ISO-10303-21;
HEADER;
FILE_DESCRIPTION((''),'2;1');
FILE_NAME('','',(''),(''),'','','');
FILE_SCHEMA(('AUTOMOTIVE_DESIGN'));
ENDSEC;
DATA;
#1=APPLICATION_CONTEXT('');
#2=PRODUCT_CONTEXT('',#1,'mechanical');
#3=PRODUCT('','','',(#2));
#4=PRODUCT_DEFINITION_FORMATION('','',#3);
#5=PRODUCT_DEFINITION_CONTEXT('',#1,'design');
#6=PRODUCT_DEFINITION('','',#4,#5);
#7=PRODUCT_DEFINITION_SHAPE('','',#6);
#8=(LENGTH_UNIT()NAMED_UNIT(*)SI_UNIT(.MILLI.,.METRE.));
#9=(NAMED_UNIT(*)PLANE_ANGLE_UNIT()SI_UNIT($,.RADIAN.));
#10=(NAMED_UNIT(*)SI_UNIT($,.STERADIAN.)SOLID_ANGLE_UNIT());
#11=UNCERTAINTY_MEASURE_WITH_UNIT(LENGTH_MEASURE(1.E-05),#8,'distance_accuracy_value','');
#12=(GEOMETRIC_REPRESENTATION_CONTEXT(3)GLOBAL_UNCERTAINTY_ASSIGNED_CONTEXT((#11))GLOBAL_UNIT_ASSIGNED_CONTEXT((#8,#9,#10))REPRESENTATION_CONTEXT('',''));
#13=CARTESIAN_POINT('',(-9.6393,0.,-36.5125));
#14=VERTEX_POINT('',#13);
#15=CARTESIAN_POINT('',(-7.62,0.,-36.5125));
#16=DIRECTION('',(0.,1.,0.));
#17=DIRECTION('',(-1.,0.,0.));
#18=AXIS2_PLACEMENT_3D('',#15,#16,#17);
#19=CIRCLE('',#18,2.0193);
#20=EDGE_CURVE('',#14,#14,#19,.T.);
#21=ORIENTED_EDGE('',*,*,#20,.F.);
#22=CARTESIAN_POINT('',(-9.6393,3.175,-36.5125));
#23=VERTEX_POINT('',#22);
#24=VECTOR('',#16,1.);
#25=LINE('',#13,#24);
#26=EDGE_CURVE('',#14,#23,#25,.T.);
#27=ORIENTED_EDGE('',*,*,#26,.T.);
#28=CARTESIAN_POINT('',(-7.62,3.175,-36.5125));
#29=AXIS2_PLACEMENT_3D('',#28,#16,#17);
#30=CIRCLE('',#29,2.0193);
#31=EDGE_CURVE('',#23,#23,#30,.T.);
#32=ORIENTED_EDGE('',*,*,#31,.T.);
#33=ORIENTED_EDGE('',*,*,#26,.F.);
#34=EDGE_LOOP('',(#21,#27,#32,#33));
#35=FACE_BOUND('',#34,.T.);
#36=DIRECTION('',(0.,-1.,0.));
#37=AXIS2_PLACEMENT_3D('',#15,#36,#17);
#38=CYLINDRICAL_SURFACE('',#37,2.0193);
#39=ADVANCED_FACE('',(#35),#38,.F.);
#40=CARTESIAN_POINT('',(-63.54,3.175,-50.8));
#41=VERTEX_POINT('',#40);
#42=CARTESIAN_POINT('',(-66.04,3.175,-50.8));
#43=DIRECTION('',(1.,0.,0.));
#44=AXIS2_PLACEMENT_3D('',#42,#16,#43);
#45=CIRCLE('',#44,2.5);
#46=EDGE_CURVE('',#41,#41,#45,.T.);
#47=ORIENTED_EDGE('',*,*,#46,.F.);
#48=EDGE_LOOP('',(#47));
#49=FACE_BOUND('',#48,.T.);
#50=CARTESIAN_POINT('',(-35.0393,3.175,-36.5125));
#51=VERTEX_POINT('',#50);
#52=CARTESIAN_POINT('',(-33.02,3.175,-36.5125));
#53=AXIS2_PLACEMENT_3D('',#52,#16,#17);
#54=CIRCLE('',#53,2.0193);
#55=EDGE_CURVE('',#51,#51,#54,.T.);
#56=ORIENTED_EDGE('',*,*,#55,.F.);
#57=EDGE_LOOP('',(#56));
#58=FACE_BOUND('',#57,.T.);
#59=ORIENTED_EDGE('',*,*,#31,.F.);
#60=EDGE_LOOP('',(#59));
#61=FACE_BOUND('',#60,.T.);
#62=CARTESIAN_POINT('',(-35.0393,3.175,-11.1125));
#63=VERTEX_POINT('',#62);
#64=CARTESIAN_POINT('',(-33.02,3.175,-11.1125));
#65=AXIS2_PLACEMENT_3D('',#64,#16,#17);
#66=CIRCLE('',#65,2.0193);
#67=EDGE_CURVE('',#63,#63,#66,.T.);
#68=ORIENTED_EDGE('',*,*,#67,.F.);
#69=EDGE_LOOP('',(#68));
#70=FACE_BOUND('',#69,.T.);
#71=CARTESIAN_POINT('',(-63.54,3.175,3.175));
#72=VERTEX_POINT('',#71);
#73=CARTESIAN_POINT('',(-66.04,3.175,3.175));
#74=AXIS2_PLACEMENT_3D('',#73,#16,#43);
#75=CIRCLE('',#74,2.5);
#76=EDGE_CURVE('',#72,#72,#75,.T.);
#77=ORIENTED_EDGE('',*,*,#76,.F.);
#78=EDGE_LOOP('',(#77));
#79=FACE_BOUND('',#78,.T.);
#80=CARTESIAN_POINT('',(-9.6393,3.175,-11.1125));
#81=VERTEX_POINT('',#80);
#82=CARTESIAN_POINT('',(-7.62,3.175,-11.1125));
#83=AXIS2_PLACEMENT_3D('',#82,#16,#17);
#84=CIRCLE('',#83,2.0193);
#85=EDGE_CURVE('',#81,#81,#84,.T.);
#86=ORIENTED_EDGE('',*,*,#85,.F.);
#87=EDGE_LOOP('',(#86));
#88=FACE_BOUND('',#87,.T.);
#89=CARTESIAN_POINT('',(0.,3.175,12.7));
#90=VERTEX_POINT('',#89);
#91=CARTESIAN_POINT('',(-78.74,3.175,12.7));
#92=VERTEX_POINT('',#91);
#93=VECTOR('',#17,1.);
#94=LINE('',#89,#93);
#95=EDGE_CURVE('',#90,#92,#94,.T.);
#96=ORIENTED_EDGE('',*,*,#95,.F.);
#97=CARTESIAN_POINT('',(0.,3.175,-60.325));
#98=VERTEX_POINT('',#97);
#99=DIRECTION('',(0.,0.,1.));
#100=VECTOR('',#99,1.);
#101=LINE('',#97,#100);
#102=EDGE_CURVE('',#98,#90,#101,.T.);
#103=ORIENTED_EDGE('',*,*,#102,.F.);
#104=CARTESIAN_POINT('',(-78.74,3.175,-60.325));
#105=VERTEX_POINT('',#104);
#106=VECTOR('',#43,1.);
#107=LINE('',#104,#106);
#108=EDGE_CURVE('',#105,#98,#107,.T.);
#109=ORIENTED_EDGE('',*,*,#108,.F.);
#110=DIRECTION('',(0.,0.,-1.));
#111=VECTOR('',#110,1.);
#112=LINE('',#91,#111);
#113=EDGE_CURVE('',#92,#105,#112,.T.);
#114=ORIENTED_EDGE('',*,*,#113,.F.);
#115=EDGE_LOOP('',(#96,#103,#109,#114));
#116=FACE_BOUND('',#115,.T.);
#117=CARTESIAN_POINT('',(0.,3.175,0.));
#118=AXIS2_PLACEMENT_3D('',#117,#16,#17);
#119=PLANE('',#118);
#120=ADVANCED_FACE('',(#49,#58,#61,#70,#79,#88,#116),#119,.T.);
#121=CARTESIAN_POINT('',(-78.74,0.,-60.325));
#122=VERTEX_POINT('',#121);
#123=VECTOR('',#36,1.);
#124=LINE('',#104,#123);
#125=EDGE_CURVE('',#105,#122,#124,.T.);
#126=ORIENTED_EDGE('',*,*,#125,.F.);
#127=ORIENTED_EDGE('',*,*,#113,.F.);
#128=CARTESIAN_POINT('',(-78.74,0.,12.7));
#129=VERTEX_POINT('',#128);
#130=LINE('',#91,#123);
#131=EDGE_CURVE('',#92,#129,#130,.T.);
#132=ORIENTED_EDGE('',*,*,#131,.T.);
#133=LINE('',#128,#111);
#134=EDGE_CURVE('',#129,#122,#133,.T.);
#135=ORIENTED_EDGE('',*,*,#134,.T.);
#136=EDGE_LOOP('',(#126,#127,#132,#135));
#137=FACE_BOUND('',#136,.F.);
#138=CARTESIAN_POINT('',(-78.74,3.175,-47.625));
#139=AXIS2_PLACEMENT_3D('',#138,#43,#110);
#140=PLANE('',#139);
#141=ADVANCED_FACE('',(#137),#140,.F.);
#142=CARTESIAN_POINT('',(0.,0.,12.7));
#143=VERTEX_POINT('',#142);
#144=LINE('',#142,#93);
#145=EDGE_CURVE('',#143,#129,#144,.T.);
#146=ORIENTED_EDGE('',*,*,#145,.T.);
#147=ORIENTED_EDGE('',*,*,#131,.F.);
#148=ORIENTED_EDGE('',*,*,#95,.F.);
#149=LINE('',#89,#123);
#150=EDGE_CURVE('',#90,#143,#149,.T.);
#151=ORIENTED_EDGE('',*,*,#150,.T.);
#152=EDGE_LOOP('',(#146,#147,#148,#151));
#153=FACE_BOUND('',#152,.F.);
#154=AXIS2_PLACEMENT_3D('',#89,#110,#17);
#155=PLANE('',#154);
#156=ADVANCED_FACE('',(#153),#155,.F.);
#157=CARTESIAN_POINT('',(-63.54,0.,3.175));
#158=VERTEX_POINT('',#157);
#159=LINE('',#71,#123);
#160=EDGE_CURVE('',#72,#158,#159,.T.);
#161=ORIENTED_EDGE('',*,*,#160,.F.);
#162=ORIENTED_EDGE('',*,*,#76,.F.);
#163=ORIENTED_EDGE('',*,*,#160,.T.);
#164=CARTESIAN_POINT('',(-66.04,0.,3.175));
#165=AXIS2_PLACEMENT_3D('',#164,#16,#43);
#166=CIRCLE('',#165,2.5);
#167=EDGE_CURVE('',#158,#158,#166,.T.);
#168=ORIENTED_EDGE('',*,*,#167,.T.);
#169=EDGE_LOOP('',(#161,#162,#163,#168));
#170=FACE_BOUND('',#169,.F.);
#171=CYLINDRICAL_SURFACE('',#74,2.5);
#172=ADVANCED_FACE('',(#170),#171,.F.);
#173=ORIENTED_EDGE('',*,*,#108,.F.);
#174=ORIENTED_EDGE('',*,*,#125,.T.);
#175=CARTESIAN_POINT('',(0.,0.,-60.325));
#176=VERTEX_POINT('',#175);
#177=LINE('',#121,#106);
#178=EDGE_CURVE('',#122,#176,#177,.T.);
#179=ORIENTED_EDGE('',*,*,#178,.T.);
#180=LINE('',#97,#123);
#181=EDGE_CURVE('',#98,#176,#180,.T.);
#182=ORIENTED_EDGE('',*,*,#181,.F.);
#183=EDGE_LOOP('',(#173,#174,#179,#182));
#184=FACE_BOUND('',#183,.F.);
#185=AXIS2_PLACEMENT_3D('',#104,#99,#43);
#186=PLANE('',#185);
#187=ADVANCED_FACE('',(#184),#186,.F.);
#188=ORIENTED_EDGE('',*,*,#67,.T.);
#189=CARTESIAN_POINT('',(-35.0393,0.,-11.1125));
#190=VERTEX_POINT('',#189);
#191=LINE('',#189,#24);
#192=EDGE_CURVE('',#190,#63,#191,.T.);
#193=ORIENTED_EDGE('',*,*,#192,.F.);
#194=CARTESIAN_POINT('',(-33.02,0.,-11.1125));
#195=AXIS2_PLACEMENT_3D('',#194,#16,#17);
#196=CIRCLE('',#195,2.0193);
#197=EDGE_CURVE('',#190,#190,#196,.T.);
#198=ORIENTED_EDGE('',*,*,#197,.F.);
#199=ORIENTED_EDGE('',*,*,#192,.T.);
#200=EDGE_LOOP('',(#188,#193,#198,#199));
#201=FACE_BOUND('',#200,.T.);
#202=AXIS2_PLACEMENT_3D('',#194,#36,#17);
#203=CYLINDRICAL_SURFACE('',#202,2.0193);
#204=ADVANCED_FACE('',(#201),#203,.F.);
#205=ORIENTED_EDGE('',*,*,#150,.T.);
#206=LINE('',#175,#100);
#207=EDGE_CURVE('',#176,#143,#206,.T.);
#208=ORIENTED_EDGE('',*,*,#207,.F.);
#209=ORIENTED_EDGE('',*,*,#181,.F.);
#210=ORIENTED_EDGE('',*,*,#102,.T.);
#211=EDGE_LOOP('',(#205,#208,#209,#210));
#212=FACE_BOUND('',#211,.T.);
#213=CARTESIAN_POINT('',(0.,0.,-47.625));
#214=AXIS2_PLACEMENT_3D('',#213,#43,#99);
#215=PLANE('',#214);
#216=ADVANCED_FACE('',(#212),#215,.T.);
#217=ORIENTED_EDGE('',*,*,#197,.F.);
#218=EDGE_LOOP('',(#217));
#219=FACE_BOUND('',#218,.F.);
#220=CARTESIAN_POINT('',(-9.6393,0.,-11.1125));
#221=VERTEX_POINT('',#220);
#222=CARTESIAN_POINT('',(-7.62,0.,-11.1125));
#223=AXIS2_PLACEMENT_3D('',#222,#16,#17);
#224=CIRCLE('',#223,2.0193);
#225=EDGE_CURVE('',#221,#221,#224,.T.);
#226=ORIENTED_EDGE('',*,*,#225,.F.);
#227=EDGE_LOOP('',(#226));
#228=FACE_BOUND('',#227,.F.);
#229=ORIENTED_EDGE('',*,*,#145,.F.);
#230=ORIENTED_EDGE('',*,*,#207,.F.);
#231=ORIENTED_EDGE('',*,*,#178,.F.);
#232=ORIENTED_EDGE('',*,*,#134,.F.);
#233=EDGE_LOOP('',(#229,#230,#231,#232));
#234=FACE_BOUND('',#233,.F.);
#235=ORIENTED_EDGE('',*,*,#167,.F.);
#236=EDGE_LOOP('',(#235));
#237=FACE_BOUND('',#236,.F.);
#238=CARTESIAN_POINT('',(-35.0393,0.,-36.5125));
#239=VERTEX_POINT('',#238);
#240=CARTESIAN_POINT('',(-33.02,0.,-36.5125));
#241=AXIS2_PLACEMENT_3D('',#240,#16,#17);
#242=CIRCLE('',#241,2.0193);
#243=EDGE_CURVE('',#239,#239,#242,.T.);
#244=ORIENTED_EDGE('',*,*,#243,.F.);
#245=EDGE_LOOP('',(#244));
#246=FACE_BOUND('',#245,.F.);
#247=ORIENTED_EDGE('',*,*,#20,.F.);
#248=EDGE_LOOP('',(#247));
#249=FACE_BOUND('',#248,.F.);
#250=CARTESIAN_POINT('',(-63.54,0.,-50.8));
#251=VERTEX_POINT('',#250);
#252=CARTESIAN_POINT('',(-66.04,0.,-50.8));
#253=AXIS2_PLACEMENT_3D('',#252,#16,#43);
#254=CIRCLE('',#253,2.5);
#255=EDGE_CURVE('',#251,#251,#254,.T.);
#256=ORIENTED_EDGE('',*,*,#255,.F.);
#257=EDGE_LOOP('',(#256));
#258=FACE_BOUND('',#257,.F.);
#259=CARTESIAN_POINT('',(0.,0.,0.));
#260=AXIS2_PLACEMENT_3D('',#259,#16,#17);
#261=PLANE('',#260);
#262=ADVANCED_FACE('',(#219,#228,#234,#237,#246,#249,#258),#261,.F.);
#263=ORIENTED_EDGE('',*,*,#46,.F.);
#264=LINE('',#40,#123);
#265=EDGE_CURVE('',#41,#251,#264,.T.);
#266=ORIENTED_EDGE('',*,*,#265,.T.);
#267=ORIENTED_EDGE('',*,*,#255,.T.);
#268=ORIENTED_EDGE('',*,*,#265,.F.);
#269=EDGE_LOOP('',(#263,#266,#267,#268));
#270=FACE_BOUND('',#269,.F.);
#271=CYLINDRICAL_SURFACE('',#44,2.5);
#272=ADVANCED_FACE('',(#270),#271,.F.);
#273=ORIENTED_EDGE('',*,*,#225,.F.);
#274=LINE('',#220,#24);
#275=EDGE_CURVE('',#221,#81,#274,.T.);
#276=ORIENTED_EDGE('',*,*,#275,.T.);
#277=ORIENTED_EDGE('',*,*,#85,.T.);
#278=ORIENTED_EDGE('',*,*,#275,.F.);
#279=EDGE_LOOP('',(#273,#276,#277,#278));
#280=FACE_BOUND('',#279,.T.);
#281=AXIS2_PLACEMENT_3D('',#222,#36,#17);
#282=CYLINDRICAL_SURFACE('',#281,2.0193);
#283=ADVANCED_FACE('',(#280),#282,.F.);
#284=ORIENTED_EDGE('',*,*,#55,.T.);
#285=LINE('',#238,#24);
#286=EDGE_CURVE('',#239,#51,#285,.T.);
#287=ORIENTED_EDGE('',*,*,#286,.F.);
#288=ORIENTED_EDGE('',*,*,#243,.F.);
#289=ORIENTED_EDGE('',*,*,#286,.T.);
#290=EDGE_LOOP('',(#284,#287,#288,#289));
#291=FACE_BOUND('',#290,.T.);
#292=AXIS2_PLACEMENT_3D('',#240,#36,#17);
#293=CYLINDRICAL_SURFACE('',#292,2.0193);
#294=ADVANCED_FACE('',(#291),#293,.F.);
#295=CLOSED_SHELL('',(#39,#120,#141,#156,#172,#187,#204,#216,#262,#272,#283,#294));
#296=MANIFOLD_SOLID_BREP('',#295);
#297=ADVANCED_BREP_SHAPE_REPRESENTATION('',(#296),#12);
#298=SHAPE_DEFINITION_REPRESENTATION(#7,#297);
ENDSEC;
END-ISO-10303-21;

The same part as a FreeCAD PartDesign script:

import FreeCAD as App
import Part
import Sketcher

V = App.Vector
Q = App.Units.Quantity

doc = App.newDocument("Part")
body = doc.addObject("PartDesign::Body", "Body")

# Sketch on XZ plane
sketch1 = body.newObject("Sketcher::SketchObject", "Sketch")
sketch1.AttachmentSupport = (doc.getObject("XZ_Plane"), [""])
sketch1.MapMode = "FlatFace"
sketch1.addGeometry([
    Part.LineSegment(V(-101.6, 0, 0), V(0, 0, 0)),  # 0
    Part.LineSegment(V(0, 0, 0), V(0, -47.625, 0)),  # 1
    Part.LineSegment(V(0, -47.625, 0), V(-101.6, -47.625, 0)),  # 2
    Part.LineSegment(V(-101.6, -47.625, 0), V(-101.6, 0, 0)),  # 3
    Part.Circle(V(-7.62, -36.5125, 0), V(0, 0, 1), 2.0193),  # 4
    Part.Circle(V(-33.02, -36.5125, 0), V(0, 0, 1), 2.0193),  # 5
    Part.Circle(V(-88.9, -38.1, 0), V(0, 0, 1), 2.5),  # 6
    Part.Circle(V(-7.62, -11.1125, 0), V(0, 0, 1), 2.0193),  # 7
    Part.Circle(V(-33.02, -11.1125, 0), V(0, 0, 1), 2.0193),  # 8
    Part.Circle(V(-88.9, -9.525, 0), V(0, 0, 1), 2.5),  # 9
], False)
sketch1.addConstraint([
    Sketcher.Constraint("Coincident", 0, 2, 1, 1),
    Sketcher.Constraint("Coincident", 1, 2, 2, 1),
    Sketcher.Constraint("Coincident", 2, 2, 3, 1),
    Sketcher.Constraint("Coincident", 3, 2, 0, 1),
    Sketcher.Constraint("Horizontal", 0),
    Sketcher.Constraint("Vertical", 1),
    Sketcher.Constraint("Horizontal", 2),
    Sketcher.Constraint("Vertical", 3),
    Sketcher.Constraint("Coincident", 0, 2, -1, 1),
    Sketcher.Constraint("Equal", 4, 5),
    Sketcher.Constraint("Equal", 5, 7),
    Sketcher.Constraint("Equal", 7, 8),
    Sketcher.Constraint("Equal", 6, 9),
    Sketcher.Constraint("Horizontal", 4, 3, 5, 3),
    Sketcher.Constraint("Horizontal", 7, 3, 8, 3),
    Sketcher.Constraint("Vertical", 4, 3, 7, 3),
    Sketcher.Constraint("Vertical", 5, 3, 8, 3),
    Sketcher.Constraint("Vertical", 6, 3, 9, 3),
    Sketcher.Constraint("DistanceX", 0, 1, 0, 2, Q("4 in")),
    Sketcher.Constraint("Diameter", 4, Q("0.159 in")),
    Sketcher.Constraint("DistanceX", 5, 3, 4, 3, Q("1 in")),
    Sketcher.Constraint("DistanceY", 4, 3, 7, 3, Q("1 in")),
    Sketcher.Constraint("DistanceX", 2, 2, 6, 3, Q("0.5 in")),
    Sketcher.Constraint("Diameter", 6, Q("5 mm")),
    Sketcher.Constraint("DistanceY", 1, 2, 1, 1, Q("1.875 in")),
    Sketcher.Constraint("DistanceY", 7, 3, -1, 1, Q("0.4375 in")),
    Sketcher.Constraint("DistanceY", 9, 3, -1, 1, Q("0.375 in")),
    Sketcher.Constraint("DistanceY", 2, 2, 6, 3, Q("0.375 in")),
    Sketcher.Constraint("DistanceX", 4, 3, -1, 1, Q("0.3 in")),
])
pad1 = body.newObject("PartDesign::Pad", "Pad")
pad1.Profile = sketch1
pad1.Length = Q("0.125 in")
pad1.Reversed = True

# Sketch on XZ plane
sketch2 = body.newObject("Sketcher::SketchObject", "Sketch001")
sketch2.AttachmentSupport = (doc.getObject("XZ_Plane"), [""])
sketch2.MapMode = "FlatFace"
sketch2.AttachmentOffset = App.Placement(V(0, 0, -0.125 * 25.4), App.Rotation())
sketch2.addGeometry([
    Part.LineSegment(V(-78.74, -60.325, 0), V(-78.74, 12.7, 0)),  # 0
    Part.LineSegment(V(-78.74, 12.7, 0), V(0, 12.7, 0)),  # 1
    Part.LineSegment(V(0, 12.7, 0), V(0, -60.325, 0)),  # 2
    Part.LineSegment(V(0, -60.325, 0), V(-78.74, -60.325, 0)),  # 3
    Part.Circle(V(-66.04, -50.8, 0), V(0, 0, 1), 2.5),  # 4
    Part.Circle(V(-7.62, -36.5125, 0), V(0, 0, 1), 2.0193),  # 5
    Part.Circle(V(-33.02, -11.1125, 0), V(0, 0, 1), 2.0193),  # 6
    Part.Circle(V(-7.62, -11.1125, 0), V(0, 0, 1), 2.0193),  # 7
    Part.Circle(V(-33.02, -36.5125, 0), V(0, 0, 1), 2.0193),  # 8
    Part.Circle(V(-66.04, 3.175, 0), V(0, 0, 1), 2.5),  # 9
], False)
sketch2.addConstraint([
    Sketcher.Constraint("Coincident", 0, 2, 1, 1),
    Sketcher.Constraint("Coincident", 1, 2, 2, 1),
    Sketcher.Constraint("Coincident", 2, 2, 3, 1),
    Sketcher.Constraint("Coincident", 3, 2, 0, 1),
    Sketcher.Constraint("Vertical", 0),
    Sketcher.Constraint("Horizontal", 1),
    Sketcher.Constraint("Vertical", 2),
    Sketcher.Constraint("Horizontal", 3),
    Sketcher.Constraint("Equal", 5, 6),
    Sketcher.Constraint("Equal", 6, 7),
    Sketcher.Constraint("Equal", 7, 8),
    Sketcher.Constraint("Equal", 4, 9),
    Sketcher.Constraint("PointOnObject", 1, 2, -2),
    Sketcher.Constraint("Horizontal", 6, 3, 7, 3),
    Sketcher.Constraint("Horizontal", 5, 3, 8, 3),
    Sketcher.Constraint("Vertical", 5, 3, 7, 3),
    Sketcher.Constraint("Vertical", 6, 3, 8, 3),
    Sketcher.Constraint("Vertical", 4, 3, 9, 3),
    Sketcher.Constraint("DistanceX", 1, 1, 1, 2, Q("3.1 in")),
    Sketcher.Constraint("DistanceY", -1, 1, 0, 2, Q("0.5 in")),
    Sketcher.Constraint("DistanceX", 0, 2, 9, 3, Q("0.5 in")),
    Sketcher.Constraint("Diameter", 5, Q("0.159 in")),
    Sketcher.Constraint("DistanceY", 4, 3, -1, 1, Q("2 in")),
    Sketcher.Constraint("DistanceX", 6, 3, 5, 3, Q("1 in")),
    Sketcher.Constraint("DistanceY", 5, 3, 6, 3, Q("1 in")),
    Sketcher.Constraint("DistanceY", 9, 3, 0, 2, Q("0.375 in")),
    Sketcher.Constraint("DistanceY", 2, 2, 4, 3, Q("0.375 in")),
    Sketcher.Constraint("DistanceX", 5, 3, -1, 1, Q("0.3 in")),
    Sketcher.Constraint("Diameter", 4, Q("5 mm")),
    Sketcher.Constraint("DistanceY", 5, 3, -1, 1, Q("1.4375 in")),
])
pad2 = body.newObject("PartDesign::Pad", "Pad001")
pad2.Profile = sketch2
pad2.Length = Q("0.125 in")

# Sketch on XZ plane
sketch3 = body.newObject("Sketcher::SketchObject", "Sketch002")
sketch3.AttachmentSupport = (doc.getObject("XZ_Plane"), [""])
sketch3.MapMode = "FlatFace"
sketch3.AttachmentOffset = App.Placement(V(0, 0, -0.125 * 25.4), App.Rotation())
sketch3.addGeometry([
    Part.LineSegment(V(-78.74, -47.625, 0), V(-101.6, -47.625, 0)),  # 0
    Part.LineSegment(V(-101.6, -47.625, 0), V(-101.6, 0, 0)),  # 1
    Part.LineSegment(V(-101.6, 0, 0), V(-78.74, 0, 0)),  # 2
    Part.LineSegment(V(-78.74, 0, 0), V(-78.74, -47.625, 0)),  # 3
    Part.Circle(V(-88.9, -9.525, 0), V(0, 0, 1), 2.5),  # 4
    Part.Circle(V(-88.9, -38.1, 0), V(0, 0, 1), 2.5),  # 5
], False)
sketch3.addConstraint([
    Sketcher.Constraint("Coincident", 0, 2, 1, 1),
    Sketcher.Constraint("Coincident", 1, 2, 2, 1),
    Sketcher.Constraint("Coincident", 2, 2, 3, 1),
    Sketcher.Constraint("Coincident", 3, 2, 0, 1),
    Sketcher.Constraint("Horizontal", 0),
    Sketcher.Constraint("Vertical", 1),
    Sketcher.Constraint("Horizontal", 2),
    Sketcher.Constraint("Vertical", 3),
    Sketcher.Constraint("Equal", 4, 5),
    Sketcher.Constraint("PointOnObject", 1, 2, -1),
    Sketcher.Constraint("Vertical", 4, 3, 5, 3),
    Sketcher.Constraint("DistanceX", 2, 2, -1, 1, Q("3.1 in")),
    Sketcher.Constraint("DistanceX", 0, 2, 5, 3, Q("0.5 in")),
    Sketcher.Constraint("DistanceX", 0, 2, 0, 1, Q("0.9 in")),
    Sketcher.Constraint("DistanceY", 4, 3, -1, 1, Q("0.375 in")),
    Sketcher.Constraint("DistanceY", 0, 2, 5, 3, Q("0.375 in")),
    Sketcher.Constraint("DistanceY", 5, 3, -1, 1, Q("1.5 in")),
    Sketcher.Constraint("Diameter", 4, Q("5 mm")),
])
pocket1 = body.newObject("PartDesign::Pocket", "Pocket")
pocket1.Profile = sketch3
pocket1.Type = "ThroughAll"
pocket1.Reversed = True

doc.recompute()
